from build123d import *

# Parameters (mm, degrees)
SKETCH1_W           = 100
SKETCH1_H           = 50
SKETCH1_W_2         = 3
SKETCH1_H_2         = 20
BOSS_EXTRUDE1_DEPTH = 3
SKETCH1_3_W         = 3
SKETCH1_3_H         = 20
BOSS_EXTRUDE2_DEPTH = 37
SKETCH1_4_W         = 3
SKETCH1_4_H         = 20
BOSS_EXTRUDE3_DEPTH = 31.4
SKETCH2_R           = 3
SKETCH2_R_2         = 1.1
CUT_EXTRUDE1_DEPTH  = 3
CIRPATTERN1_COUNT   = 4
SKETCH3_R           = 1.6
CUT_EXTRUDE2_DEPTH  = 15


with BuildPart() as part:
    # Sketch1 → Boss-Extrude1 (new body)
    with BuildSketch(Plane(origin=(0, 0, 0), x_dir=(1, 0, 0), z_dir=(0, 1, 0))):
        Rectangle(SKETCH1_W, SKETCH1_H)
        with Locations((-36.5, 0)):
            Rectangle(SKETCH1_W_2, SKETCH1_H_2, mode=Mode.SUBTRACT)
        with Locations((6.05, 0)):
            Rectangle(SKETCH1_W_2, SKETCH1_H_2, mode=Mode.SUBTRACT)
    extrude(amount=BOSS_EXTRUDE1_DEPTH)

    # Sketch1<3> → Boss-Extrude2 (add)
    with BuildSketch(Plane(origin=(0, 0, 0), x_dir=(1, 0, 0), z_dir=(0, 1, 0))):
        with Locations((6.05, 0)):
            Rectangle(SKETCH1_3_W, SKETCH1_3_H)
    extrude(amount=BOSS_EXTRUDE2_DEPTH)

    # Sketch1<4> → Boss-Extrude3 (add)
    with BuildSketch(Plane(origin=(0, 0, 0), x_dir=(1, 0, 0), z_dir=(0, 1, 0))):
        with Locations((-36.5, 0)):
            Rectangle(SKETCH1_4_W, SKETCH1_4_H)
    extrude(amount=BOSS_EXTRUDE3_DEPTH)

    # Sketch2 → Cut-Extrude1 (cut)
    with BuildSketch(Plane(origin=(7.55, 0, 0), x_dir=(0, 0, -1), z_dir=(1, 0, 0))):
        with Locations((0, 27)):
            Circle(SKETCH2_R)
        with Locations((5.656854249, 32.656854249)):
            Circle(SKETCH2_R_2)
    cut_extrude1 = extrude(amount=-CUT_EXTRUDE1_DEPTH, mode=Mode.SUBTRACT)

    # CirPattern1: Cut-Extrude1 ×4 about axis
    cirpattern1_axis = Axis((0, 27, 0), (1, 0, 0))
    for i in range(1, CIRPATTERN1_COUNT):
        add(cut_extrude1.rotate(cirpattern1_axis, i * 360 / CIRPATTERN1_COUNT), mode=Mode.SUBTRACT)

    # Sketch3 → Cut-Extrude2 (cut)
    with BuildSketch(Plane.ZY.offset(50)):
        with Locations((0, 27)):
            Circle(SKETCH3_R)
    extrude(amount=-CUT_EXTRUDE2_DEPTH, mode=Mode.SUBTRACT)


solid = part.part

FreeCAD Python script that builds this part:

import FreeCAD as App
import Part
import Sketcher


def add_polygon(sketch, points):
    """Adds a closed chain of lines whose ends are joined by coincident constraints."""
    first, n = sketch.GeometryCount, len(points)
    for a, b in zip(points, points[1:] + points[:1]):
        sketch.addGeometry(Part.LineSegment(App.Vector(*a, 0), App.Vector(*b, 0)), False)
    for i in range(n):
        sketch.addConstraint(Sketcher.Constraint("Coincident", first + i, 2, first + (i + 1) % n, 1))

doc = App.newDocument("Part")
body = doc.addObject("PartDesign::Body", "Body")

# Sketch on XZ plane
sketch1 = body.newObject("Sketcher::SketchObject", "Sketch")
sketch1.AttachmentSupport = (doc.getObject("XZ_Plane"), [""])
sketch1.MapMode = "FlatFace"
add_polygon(sketch1, [(-50, -25), (-50, 25), (50, 25), (50, -25)])  # lines 0-3
add_polygon(sketch1, [(-35, 10), (-38, 10), (-38, -10), (-35, -10)])  # lines 4-7
add_polygon(sketch1, [(7.5, 10), (4.5, 10), (4.5, -10), (7.5, -10)])  # lines 8-11
sketch1.addConstraint([
    Sketcher.Constraint("Vertical", 0),
    Sketcher.Constraint("Horizontal", 1),
    Sketcher.Constraint("Vertical", 2),
    Sketcher.Constraint("Horizontal", 3),
    Sketcher.Constraint("Horizontal", 4),
    Sketcher.Constraint("Vertical", 5),
    Sketcher.Constraint("Horizontal", 6),
    Sketcher.Constraint("Vertical", 7),
    Sketcher.Constraint("Horizontal", 8),
    Sketcher.Constraint("Vertical", 9),
    Sketcher.Constraint("Horizontal", 10),
    Sketcher.Constraint("Vertical", 11),
    Sketcher.Constraint("Symmetric", 0, 2, 2, 2, -1, 1),
    Sketcher.Constraint("Horizontal", 7, 2, 8, 2),
    Sketcher.Constraint("Horizontal", 6, 2, 9, 2),
    Sketcher.Constraint("Equal", 6, 8),
    Sketcher.Constraint("DistanceX", 1, 1, 1, 2, 100.0),
    Sketcher.Constraint("DistanceX", 4, 2, 4, 1, 3.0),
    Sketcher.Constraint("DistanceY", 0, 1, 0, 2, 50.0),
    Sketcher.Constraint("DistanceY", 5, 2, 5, 1, 20.0),
    Sketcher.Constraint("DistanceX", 4, 2, -1, 1, 38.0),
    Sketcher.Constraint("DistanceY", -1, 1, 4, 2, 10.0),
    Sketcher.Constraint("DistanceX", -1, 1, 8, 2, 4.55),
])
pad1 = body.newObject("PartDesign::Pad", "Pad")
pad1.Profile = sketch1
pad1.Length = 3
pad1.Reversed = True

# Sketch on XZ plane
sketch2 = body.newObject("Sketcher::SketchObject", "Sketch001")
sketch2.AttachmentSupport = (doc.getObject("XZ_Plane"), [""])
sketch2.MapMode = "FlatFace"
add_polygon(sketch2, [(4.5, -10), (4.5, 10), (7.5, 10), (7.5, -10)])  # lines 0-3
sketch2.addConstraint([
    Sketcher.Constraint("Vertical", 0),
    Sketcher.Constraint("Horizontal", 1),
    Sketcher.Constraint("Vertical", 2),
    Sketcher.Constraint("Horizontal", 3),
    Sketcher.Constraint("DistanceX", 1, 1, 1, 2, 3.0),
    Sketcher.Constraint("DistanceY", 0, 1, 0, 2, 20.0),
    Sketcher.Constraint("DistanceY", -1, 1, 0, 2, 10.0),
    Sketcher.Constraint("DistanceX", -1, 1, 0, 2, 4.55),
])
pad2 = body.newObject("PartDesign::Pad", "Pad001")
pad2.Profile = sketch2
pad2.Length = 37
pad2.Reversed = True

# Sketch on XZ plane
sketch3 = body.newObject("Sketcher::SketchObject", "Sketch002")
sketch3.AttachmentSupport = (doc.getObject("XZ_Plane"), [""])
sketch3.MapMode = "FlatFace"
add_polygon(sketch3, [(-38, -10), (-38, 10), (-35, 10), (-35, -10)])  # lines 0-3
sketch3.addConstraint([
    Sketcher.Constraint("Vertical", 0),
    Sketcher.Constraint("Horizontal", 1),
    Sketcher.Constraint("Vertical", 2),
    Sketcher.Constraint("Horizontal", 3),
    Sketcher.Constraint("DistanceX", 1, 1, 1, 2, 3.0),
    Sketcher.Constraint("DistanceY", 0, 1, 0, 2, 20.0),
    Sketcher.Constraint("DistanceX", 0, 2, -1, 1, 38.0),
    Sketcher.Constraint("DistanceY", -1, 1, 0, 2, 10.0),
])
pad3 = body.newObject("PartDesign::Pad", "Pad002")
pad3.Profile = sketch3
pad3.Length = 31.4
pad3.Reversed = True

# Sketch on YZ plane
sketch4 = body.newObject("Sketcher::SketchObject", "Sketch003")
sketch4.AttachmentSupport = (doc.getObject("YZ_Plane"), [""])
sketch4.MapMode = "FlatFace"
sketch4.AttachmentOffset = App.Placement(App.Vector(0, 0, 7.55), App.Rotation())
sketch4.addGeometry([
    Part.Circle(App.Vector(27, 0, 0), App.Vector(0, 0, 1), 3),
    Part.Circle(App.Vector(32.7, -5.7, 0), App.Vector(0, 0, 1), 1.1),
], False)
sketch4.addConstraint([
    Sketcher.Constraint("PointOnObject", 0, 3, -1),
    Sketcher.Constraint("Diameter", 0, 6.0),
    Sketcher.Constraint("Diameter", 1, 2.2),
    Sketcher.Constraint("DistanceX", -1, 1, 0, 3, 27.0),
    Sketcher.Constraint("DistanceX", -1, 1, 1, 3, 32.656854),
    Sketcher.Constraint("DistanceY", 1, 3, -1, 1, 5.656854),
])
pocket1 = body.newObject("PartDesign::Pocket", "Pocket")
pocket1.Profile = sketch4
pocket1.Length = 3
doc.recompute()

datumline = body.newObject("PartDesign::Line", "DatumLine")
datumline.Placement = App.Placement(App.Vector(0, 27, 0), App.Rotation(App.Vector(0, 0, 1), App.Vector(1, 0, 0)))
polarpattern = body.newObject("PartDesign::PolarPattern", "PolarPattern")
polarpattern.Originals = [pocket1]
polarpattern.Axis = (datumline, [""])
polarpattern.Angle = 360
polarpattern.Occurrences = 4
body.Tip = polarpattern

# Sketch on YZ plane
sketch5 = body.newObject("Sketcher::SketchObject", "Sketch004")
sketch5.AttachmentSupport = (doc.getObject("YZ_Plane"), [""])
sketch5.MapMode = "FlatFace"
sketch5.AttachmentOffset = App.Placement(App.Vector(0, 0, -50), App.Rotation())
sketch5.addGeometry(Part.Circle(App.Vector(27, 0, 0), App.Vector(0, 0, 1), 1.6), False)
sketch5.addConstraint([
    Sketcher.Constraint("PointOnObject", 0, 3, -1),
    Sketcher.Constraint("Diameter", 0, 3.2),
    Sketcher.Constraint("DistanceX", -1, 1, 0, 3, 27.0),
])
pocket2 = body.newObject("PartDesign::Pocket", "Pocket001")
pocket2.Profile = sketch5
pocket2.Length = 15
pocket2.Reversed = True

doc.recompute()
